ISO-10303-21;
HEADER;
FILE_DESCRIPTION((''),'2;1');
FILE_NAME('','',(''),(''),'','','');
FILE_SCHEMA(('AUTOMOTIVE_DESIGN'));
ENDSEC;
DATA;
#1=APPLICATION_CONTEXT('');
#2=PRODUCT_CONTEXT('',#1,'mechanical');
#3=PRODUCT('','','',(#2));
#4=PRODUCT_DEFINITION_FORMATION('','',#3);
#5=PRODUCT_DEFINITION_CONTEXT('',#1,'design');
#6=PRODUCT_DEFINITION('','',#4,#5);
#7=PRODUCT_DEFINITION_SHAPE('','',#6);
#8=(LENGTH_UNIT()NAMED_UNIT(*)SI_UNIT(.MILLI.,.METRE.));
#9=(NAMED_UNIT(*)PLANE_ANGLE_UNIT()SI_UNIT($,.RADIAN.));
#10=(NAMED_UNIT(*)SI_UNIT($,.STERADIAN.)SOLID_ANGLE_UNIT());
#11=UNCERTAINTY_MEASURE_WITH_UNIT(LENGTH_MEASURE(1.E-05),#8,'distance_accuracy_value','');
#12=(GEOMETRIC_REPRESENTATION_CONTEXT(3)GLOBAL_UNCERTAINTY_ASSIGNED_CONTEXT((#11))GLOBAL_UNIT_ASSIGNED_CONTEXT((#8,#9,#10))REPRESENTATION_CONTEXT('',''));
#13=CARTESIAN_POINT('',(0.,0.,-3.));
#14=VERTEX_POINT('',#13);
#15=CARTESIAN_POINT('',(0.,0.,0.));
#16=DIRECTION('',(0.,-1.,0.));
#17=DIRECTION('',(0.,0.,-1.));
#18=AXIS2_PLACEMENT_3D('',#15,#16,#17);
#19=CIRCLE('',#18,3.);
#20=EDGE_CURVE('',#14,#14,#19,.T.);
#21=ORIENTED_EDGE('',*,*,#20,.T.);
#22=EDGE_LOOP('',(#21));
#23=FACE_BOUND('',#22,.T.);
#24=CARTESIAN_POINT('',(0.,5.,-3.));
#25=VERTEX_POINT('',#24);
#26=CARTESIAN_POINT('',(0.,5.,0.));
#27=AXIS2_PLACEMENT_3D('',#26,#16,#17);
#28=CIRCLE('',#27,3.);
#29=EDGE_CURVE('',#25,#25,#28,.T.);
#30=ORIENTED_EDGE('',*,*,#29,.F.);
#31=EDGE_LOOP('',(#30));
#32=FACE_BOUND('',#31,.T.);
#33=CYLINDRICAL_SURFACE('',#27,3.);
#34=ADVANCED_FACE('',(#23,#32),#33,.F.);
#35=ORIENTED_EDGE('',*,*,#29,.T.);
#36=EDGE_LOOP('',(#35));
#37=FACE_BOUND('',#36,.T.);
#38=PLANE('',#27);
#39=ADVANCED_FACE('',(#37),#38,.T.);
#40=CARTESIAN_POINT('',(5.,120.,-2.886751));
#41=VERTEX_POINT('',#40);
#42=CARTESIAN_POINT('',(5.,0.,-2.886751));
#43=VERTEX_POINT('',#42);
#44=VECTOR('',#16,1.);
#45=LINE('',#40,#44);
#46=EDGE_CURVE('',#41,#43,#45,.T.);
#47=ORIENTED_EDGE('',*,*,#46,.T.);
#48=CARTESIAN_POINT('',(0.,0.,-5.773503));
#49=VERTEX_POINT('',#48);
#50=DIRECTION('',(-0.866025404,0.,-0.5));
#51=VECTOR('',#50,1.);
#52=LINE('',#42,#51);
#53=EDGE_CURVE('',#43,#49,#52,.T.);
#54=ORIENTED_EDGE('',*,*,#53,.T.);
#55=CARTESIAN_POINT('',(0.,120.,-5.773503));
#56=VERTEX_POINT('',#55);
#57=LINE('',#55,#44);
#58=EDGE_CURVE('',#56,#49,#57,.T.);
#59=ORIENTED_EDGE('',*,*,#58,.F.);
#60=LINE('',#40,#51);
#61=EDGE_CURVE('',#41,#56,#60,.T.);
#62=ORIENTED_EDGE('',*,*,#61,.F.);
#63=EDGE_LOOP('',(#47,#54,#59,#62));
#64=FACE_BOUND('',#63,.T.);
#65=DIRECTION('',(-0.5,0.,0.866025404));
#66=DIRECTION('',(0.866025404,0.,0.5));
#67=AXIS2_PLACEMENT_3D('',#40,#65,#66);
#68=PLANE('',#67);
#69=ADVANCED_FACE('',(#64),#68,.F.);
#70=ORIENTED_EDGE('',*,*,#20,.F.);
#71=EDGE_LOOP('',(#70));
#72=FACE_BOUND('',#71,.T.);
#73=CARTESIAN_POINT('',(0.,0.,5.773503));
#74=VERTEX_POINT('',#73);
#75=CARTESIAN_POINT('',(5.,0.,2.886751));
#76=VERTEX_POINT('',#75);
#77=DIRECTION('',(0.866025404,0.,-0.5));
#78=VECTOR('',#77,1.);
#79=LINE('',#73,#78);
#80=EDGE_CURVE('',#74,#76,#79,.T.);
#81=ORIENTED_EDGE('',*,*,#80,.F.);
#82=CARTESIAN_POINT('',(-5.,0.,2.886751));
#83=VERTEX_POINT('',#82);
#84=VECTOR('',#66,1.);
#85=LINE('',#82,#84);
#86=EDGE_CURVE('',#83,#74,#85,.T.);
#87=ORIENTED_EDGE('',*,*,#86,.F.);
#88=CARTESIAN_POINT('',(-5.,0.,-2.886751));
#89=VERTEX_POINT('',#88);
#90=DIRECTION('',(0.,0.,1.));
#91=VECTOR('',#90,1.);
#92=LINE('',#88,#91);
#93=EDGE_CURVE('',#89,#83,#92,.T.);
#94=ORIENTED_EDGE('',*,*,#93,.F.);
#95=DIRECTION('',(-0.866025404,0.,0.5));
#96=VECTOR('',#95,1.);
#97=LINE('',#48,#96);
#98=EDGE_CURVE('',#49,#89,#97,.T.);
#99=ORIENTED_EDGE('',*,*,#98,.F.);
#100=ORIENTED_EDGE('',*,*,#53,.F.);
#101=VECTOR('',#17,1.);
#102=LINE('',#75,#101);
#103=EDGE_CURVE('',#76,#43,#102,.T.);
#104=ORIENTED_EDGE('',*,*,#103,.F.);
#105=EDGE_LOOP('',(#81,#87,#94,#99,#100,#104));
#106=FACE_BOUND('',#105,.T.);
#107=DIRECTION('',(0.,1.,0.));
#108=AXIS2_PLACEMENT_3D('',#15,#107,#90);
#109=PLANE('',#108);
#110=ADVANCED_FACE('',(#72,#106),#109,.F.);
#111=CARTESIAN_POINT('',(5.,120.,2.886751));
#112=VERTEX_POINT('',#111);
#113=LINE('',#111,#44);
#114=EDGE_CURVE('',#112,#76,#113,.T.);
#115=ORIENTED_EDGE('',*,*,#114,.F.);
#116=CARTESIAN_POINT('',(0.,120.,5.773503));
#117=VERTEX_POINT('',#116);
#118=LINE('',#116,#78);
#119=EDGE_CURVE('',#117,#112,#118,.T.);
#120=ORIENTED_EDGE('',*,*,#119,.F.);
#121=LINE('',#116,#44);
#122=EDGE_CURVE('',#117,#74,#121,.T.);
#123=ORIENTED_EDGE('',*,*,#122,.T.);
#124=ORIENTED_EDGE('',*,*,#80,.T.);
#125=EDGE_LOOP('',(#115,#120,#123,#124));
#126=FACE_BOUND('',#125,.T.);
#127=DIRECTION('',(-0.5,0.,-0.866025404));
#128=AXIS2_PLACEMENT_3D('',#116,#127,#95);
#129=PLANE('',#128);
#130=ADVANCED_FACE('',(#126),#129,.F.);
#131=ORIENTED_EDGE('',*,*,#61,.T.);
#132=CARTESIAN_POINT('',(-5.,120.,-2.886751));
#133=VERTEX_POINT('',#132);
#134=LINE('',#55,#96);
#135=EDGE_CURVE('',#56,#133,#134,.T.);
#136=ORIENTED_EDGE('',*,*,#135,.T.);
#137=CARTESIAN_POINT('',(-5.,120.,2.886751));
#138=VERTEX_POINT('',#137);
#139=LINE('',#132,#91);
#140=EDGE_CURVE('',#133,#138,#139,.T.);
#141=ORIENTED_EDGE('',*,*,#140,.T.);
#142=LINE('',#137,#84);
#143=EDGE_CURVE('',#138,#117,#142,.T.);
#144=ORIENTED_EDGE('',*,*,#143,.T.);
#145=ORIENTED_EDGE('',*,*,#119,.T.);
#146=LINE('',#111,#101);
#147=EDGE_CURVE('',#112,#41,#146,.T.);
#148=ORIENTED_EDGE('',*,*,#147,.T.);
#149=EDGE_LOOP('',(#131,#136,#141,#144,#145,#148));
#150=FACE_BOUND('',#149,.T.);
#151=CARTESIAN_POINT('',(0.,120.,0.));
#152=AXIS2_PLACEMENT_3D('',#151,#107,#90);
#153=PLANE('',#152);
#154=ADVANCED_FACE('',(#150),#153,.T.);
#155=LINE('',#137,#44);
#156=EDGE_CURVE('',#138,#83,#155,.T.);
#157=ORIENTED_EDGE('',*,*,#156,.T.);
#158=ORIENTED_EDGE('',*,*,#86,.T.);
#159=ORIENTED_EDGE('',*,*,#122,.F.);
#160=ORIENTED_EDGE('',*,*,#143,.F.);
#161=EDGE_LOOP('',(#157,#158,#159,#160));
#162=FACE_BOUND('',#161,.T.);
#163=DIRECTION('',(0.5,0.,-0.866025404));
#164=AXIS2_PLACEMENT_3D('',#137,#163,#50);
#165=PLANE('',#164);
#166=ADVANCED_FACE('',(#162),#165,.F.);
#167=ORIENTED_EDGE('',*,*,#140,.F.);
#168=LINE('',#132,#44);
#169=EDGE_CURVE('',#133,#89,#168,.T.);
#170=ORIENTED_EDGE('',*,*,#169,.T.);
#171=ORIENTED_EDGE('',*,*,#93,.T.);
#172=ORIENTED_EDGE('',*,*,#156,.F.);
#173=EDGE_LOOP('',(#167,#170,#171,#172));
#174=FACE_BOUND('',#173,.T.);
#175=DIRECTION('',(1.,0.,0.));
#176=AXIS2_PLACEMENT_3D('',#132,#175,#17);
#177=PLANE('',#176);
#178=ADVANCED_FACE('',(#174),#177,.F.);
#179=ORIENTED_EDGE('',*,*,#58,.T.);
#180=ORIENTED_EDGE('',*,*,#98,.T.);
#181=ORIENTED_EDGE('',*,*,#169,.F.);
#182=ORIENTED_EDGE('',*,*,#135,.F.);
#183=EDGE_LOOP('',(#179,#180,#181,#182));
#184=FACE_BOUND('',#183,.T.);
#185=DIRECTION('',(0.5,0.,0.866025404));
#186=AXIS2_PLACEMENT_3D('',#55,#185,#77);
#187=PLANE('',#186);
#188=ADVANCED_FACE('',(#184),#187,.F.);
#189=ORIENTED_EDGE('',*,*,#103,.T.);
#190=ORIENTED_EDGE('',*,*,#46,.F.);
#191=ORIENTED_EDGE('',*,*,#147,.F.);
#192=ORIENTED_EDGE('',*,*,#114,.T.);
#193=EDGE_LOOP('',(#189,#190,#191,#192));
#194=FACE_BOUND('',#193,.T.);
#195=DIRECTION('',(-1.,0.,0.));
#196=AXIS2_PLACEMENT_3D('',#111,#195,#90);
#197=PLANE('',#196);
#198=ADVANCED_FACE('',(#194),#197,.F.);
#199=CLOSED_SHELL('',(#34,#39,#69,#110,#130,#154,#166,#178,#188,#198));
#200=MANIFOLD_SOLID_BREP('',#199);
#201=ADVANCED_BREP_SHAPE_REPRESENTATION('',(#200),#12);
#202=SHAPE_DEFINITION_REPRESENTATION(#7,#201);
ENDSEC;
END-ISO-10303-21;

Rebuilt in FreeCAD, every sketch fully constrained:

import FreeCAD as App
import Part
import Sketcher
from FreeCAD import Vector
Q = App.Units.Quantity


def add_polygon(sketch, points):
    """Adds a closed chain of lines whose ends are joined by coincident constraints."""
    first, n = sketch.GeometryCount, len(points)
    for a, b in zip(points, points[1:] + points[:1]):
        sketch.addGeometry(Part.LineSegment(App.Vector(*a, 0), App.Vector(*b, 0)), False)
    for i in range(n):
        sketch.addConstraint(Sketcher.Constraint("Coincident", first + i, 2, first + (i + 1) % n, 1))

doc = App.newDocument("Part")
params = doc.addObject("Spreadsheet::Sheet", "Params")
for row, (alias, value) in enumerate([
    ("pad1_length", "120 mm"),
    ("sketch2_diameter", "6 mm"),
    ("pocket1_length", "5 mm"),
], start=1):
    params.set(f"A{row}", alias)
    params.set(f"B{row}", "=" + value)
    params.setAlias(f"B{row}", alias)

body = doc.addObject("PartDesign::Body", "Body")

# Sketch on XZ plane
sketch1 = body.newObject("Sketcher::SketchObject", "Sketch")
sketch1.AttachmentSupport = (doc.getObject("XZ_Plane"), [""])
sketch1.MapMode = "FlatFace"
add_polygon(sketch1, [(0, -6), (-5, -3), (-5, 3), (0, 6), (5, 3), (5, -3)])  # lines 0-5
sketch1.addConstraint(Sketcher.Constraint("Vertical", 1))
sketch1.addConstraint(Sketcher.Constraint("Vertical", 4))
sketch1.addConstraint(Sketcher.Constraint("Symmetric", 0, 2, 3, 2, -1, 1))
sketch1.addConstraint(Sketcher.Constraint("Symmetric", 2, 2, 5, 2, -1, 1))
sketch1.addConstraint(Sketcher.Constraint("PointOnObject", 2, 2, -2))
sketch1.addConstraint(Sketcher.Constraint("Parallel", 2, 5))
sketch1.addConstraint(Sketcher.Constraint("Horizontal", 1, 2, 3, 2))
sketch1.addConstraint(Sketcher.Constraint("Angle", 0, Q("150 deg")))
sketch1.addConstraint(Sketcher.Constraint("DistanceX", 0, 2, -1, 1, 5.0))
sketch1.addConstraint(Sketcher.Constraint("DistanceY", 1, 1, 1, 2, 5.773503))
pad1 = body.newObject("PartDesign::Pad", "Pad")
pad1.Profile = sketch1
pad1.setExpression("Length", "Params.pad1_length")
pad1.Reversed = True

# Sketch on XZ plane
sketch2 = body.newObject("Sketcher::SketchObject", "Sketch001")
sketch2.AttachmentSupport = (doc.getObject("XZ_Plane"), [""])
sketch2.MapMode = "FlatFace"
sketch2.addGeometry(Part.Circle(Vector(0, 0, 0), Vector(0, 0, 1), 3), False)
sketch2.addConstraint(Sketcher.Constraint("Coincident", 0, 3, -1, 1))
sketch2.addConstraint(Sketcher.Constraint("Diameter", 0, 6.0))
sketch2.setExpression("Constraints[1]", "Params.sketch2_diameter")
pocket1 = body.newObject("PartDesign::Pocket", "Pocket")
pocket1.Profile = sketch2
pocket1.setExpression("Length", "Params.pocket1_length")

doc.recompute()
